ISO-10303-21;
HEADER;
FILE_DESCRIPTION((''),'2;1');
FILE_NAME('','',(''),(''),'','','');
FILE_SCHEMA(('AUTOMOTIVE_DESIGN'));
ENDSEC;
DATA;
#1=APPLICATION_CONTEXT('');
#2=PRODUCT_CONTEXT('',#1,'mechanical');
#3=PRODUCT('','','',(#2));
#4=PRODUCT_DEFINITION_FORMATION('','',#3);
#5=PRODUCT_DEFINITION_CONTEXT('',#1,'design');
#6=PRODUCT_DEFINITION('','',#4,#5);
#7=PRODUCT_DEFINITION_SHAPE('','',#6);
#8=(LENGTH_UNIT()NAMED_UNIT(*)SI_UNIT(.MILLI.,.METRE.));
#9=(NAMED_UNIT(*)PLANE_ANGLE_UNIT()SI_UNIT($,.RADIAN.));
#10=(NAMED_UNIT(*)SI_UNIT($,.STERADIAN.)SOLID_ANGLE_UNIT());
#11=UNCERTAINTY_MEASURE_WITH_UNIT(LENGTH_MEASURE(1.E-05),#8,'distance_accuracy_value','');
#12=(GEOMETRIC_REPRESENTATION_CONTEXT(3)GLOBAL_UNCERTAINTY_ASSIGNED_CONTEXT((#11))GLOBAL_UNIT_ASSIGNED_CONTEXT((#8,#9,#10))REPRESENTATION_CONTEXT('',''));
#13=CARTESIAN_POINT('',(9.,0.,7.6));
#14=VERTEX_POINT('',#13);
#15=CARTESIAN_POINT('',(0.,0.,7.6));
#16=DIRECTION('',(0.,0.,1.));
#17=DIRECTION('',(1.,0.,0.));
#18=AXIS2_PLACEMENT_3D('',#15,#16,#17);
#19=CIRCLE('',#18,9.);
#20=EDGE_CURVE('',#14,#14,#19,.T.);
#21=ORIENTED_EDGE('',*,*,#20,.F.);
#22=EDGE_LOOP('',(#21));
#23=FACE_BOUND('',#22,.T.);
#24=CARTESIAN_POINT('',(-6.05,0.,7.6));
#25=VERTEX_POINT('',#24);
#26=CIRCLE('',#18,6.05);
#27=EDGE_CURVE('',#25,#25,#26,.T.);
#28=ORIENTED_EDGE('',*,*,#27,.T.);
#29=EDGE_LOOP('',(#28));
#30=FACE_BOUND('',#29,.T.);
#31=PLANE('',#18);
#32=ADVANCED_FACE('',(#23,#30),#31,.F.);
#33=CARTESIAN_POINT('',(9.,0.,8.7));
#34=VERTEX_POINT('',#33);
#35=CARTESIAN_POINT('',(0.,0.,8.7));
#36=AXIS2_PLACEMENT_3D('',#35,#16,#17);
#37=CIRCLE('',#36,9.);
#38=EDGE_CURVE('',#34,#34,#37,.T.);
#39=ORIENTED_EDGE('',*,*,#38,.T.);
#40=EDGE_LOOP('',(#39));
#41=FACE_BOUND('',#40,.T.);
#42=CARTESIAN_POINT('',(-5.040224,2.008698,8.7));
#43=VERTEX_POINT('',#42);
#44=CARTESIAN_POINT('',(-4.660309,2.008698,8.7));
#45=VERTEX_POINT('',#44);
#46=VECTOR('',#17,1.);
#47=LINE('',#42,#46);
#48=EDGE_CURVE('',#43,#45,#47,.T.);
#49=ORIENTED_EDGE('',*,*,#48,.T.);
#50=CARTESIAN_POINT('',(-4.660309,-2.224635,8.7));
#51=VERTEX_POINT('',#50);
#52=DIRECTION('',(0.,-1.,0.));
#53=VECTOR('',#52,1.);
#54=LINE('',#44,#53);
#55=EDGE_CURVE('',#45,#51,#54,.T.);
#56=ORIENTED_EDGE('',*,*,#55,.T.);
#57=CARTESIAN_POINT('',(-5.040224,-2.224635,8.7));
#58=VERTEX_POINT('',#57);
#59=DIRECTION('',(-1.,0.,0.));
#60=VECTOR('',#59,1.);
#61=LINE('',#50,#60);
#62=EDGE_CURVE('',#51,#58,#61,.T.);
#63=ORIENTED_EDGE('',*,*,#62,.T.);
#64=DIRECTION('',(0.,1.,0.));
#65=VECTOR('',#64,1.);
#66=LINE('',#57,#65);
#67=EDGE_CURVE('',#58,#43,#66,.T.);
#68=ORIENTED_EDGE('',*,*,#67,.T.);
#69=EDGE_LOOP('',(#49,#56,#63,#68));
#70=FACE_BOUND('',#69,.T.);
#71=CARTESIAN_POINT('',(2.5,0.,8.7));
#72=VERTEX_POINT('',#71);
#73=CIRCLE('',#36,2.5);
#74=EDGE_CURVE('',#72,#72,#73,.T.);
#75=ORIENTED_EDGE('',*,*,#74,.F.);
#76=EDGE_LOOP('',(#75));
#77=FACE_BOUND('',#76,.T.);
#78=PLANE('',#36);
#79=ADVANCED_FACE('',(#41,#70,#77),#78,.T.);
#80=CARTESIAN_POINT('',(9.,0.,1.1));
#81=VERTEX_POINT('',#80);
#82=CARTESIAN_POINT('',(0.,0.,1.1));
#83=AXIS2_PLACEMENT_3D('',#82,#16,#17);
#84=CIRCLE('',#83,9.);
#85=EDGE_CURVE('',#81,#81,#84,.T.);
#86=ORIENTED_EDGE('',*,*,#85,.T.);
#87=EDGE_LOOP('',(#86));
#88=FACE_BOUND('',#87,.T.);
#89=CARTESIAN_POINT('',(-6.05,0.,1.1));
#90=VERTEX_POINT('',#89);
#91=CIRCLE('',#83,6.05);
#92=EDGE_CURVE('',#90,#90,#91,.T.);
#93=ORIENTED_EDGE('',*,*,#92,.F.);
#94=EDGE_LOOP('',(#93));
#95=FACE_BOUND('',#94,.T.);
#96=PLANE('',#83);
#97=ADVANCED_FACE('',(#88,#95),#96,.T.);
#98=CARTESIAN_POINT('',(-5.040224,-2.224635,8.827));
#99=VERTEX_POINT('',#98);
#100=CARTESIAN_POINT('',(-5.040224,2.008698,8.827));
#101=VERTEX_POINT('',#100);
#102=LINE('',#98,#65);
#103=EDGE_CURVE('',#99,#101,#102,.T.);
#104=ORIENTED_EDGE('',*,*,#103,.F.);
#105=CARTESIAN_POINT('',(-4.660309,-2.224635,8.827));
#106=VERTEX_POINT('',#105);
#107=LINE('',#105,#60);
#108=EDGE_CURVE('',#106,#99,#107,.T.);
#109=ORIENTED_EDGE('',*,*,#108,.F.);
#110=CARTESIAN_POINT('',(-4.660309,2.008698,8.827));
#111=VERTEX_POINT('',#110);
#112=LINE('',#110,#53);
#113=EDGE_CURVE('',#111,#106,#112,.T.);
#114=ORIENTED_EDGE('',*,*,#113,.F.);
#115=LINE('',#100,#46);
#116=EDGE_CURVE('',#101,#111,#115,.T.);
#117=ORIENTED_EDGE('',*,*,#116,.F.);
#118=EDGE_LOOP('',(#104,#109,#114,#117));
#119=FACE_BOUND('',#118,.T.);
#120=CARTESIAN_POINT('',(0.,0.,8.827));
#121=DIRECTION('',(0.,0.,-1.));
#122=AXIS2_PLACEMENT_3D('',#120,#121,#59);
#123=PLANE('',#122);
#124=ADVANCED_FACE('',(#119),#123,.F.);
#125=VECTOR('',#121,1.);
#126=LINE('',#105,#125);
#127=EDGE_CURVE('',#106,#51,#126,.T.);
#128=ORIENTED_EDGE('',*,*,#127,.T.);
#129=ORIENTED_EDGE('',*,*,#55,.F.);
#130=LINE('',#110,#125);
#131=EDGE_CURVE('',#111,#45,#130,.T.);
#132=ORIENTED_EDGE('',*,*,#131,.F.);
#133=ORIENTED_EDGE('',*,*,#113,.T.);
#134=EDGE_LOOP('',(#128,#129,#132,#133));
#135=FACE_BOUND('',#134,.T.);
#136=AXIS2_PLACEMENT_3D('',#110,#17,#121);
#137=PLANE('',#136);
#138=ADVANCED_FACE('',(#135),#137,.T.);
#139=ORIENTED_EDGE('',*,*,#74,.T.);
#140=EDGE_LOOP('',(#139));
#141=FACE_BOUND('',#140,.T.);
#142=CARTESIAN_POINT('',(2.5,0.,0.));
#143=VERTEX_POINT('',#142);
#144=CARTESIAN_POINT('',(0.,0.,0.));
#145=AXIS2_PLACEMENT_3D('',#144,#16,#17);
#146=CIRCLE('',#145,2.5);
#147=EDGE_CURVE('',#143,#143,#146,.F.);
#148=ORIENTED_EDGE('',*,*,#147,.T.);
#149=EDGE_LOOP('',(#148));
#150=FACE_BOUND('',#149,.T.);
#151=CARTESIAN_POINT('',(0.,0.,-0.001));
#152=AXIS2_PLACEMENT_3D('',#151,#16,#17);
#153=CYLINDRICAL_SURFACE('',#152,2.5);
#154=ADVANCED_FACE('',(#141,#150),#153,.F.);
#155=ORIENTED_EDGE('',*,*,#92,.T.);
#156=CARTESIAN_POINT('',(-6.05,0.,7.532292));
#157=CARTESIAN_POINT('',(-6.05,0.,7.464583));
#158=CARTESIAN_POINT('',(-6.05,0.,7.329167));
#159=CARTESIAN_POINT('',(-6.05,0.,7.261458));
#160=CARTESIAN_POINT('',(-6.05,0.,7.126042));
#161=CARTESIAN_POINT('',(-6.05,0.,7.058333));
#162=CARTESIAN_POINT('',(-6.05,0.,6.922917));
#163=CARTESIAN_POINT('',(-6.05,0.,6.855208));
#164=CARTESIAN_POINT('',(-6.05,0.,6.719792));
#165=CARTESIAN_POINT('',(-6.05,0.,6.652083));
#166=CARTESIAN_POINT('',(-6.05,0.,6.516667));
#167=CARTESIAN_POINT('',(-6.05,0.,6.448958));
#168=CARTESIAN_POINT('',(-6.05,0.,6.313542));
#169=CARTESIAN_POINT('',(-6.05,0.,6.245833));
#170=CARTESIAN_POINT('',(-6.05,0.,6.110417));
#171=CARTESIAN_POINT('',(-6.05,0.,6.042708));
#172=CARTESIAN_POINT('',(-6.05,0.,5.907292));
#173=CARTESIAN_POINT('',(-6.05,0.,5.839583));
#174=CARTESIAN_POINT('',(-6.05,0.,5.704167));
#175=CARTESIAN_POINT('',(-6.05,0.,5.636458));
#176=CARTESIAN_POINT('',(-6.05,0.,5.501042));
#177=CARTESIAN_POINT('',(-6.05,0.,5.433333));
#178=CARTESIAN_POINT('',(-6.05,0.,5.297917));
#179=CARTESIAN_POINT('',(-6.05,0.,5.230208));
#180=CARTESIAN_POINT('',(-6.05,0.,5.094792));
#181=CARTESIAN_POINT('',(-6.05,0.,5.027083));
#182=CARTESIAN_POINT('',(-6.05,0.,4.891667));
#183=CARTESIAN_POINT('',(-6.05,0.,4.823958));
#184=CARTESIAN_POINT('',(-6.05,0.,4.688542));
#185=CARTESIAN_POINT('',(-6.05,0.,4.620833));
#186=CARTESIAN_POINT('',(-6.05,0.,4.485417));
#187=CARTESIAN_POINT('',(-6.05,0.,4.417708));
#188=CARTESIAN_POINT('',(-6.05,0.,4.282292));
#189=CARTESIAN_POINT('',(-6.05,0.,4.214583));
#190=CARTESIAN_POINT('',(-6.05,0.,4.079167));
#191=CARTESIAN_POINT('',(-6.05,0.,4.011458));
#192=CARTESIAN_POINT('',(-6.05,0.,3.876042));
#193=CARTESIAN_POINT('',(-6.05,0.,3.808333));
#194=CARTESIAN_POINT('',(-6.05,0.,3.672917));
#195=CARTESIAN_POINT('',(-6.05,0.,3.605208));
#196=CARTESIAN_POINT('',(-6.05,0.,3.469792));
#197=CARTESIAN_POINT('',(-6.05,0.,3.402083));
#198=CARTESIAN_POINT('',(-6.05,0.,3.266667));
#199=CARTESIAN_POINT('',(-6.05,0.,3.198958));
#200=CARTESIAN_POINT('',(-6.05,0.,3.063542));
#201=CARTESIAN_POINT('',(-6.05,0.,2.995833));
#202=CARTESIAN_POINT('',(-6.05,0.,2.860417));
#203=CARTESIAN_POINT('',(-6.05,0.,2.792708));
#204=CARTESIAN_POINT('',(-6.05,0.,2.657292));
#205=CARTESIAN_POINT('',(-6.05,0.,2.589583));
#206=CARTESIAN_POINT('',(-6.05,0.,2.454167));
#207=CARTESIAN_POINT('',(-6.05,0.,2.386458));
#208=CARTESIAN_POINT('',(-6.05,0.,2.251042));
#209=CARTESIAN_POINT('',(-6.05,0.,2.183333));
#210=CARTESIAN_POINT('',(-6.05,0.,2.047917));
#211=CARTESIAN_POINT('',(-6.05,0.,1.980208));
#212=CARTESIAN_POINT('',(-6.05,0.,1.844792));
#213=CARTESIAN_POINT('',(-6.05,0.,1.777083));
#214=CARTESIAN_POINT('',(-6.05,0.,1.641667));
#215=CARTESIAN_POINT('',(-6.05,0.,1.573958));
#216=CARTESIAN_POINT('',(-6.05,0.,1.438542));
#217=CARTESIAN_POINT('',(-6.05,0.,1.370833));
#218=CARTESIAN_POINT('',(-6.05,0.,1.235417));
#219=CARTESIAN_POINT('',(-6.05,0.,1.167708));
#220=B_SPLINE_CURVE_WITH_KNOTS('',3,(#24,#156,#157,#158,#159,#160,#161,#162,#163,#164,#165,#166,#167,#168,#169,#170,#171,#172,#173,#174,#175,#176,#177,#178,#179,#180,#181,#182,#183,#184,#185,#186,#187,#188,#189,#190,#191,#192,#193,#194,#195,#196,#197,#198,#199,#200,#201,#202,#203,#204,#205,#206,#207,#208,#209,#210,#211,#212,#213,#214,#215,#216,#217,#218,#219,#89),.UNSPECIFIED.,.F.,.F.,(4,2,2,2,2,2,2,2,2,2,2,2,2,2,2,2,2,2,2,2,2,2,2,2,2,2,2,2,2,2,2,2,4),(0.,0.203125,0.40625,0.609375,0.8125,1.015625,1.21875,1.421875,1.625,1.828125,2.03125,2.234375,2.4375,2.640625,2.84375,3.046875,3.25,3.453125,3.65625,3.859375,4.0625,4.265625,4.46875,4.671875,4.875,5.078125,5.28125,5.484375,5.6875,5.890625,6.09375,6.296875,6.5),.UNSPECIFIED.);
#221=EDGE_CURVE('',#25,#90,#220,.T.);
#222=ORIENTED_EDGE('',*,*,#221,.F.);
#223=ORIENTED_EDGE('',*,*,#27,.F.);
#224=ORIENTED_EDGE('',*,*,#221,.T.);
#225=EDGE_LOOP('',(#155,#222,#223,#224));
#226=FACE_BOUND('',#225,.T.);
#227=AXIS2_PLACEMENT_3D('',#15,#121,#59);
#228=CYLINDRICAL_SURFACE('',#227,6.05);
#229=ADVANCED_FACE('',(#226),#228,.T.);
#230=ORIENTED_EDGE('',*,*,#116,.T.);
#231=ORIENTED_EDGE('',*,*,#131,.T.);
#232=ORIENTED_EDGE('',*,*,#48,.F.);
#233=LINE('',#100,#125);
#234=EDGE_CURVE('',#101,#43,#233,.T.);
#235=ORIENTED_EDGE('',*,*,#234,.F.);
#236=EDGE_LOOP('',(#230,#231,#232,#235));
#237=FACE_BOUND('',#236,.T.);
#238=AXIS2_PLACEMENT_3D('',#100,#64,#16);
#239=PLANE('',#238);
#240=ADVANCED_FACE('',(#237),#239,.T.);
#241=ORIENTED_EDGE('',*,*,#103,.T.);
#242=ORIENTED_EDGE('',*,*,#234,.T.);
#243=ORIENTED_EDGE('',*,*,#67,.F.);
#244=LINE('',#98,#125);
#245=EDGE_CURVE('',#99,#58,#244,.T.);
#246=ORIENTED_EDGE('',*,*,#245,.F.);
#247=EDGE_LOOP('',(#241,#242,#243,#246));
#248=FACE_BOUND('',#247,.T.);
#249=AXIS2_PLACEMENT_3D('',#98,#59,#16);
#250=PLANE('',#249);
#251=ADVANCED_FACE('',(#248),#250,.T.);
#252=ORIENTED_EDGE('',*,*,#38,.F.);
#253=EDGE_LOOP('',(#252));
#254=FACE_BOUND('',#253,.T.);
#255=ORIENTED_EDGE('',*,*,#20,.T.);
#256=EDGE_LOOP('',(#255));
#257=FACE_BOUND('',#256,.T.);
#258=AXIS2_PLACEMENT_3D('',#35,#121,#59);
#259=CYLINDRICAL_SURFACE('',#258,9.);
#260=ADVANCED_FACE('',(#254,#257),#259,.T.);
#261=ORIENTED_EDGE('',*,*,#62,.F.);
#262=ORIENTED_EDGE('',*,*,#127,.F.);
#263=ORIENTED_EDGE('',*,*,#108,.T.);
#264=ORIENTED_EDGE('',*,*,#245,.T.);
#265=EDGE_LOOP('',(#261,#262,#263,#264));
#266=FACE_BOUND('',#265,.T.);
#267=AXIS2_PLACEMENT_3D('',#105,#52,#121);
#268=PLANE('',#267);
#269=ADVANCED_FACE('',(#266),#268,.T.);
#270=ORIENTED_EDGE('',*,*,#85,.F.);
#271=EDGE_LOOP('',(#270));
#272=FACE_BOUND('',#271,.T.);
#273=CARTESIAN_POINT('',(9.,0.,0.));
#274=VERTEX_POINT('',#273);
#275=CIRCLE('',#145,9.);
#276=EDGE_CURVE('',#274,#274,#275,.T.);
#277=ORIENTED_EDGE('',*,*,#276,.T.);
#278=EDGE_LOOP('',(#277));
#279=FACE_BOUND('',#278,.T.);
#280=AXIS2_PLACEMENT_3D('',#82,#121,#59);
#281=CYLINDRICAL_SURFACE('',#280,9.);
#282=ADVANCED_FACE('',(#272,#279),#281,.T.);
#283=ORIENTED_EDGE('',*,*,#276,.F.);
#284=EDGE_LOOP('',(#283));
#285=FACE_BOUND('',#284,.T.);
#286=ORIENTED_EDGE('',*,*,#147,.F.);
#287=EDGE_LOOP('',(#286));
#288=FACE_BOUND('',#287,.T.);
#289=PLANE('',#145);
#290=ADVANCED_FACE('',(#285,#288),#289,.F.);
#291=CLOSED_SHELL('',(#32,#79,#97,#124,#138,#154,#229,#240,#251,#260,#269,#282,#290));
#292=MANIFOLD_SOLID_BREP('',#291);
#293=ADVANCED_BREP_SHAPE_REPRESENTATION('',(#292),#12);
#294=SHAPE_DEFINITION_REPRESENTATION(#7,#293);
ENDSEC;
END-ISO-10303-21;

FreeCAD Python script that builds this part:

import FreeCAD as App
import Part
import Sketcher

doc = App.newDocument("Part")
body = doc.addObject("PartDesign::Body", "Body")

# Sketch on XY plane
sketch1 = body.newObject("Sketcher::SketchObject", "Sketch")
sketch1.AttachmentSupport = (doc.getObject("XY_Plane"), [""])
sketch1.MapMode = "FlatFace"
sketch1.addGeometry(Part.Circle(App.Vector(0, 0, 0), App.Vector(0, 0, 1), 9), False)
sketch1.addConstraint([
    Sketcher.Constraint("Coincident", 0, 3, -1, 1),
    Sketcher.Constraint("Diameter", 0, 18.0),
])
pad1 = body.newObject("PartDesign::Pad", "Pad")
pad1.Profile = sketch1
pad1.Length = 1.1

# Sketch on XY plane
sketch2 = body.newObject("Sketcher::SketchObject", "Sketch001")
sketch2.AttachmentSupport = (doc.getObject("XY_Plane"), [""])
sketch2.MapMode = "FlatFace"
sketch2.AttachmentOffset = App.Placement(App.Vector(0, 0, 1.1), App.Rotation())
sketch2.addGeometry(Part.Circle(App.Vector(0, 0, 0), App.Vector(0, 0, 1), 6), False)
sketch2.addConstraint([
    Sketcher.Constraint("Coincident", 0, 3, -1, 1),
    Sketcher.Constraint("Diameter", 0, 12.1),
])
pad2 = body.newObject("PartDesign::Pad", "Pad001")
pad2.Profile = sketch2
pad2.Length = 6.5

# Sketch on XY plane
sketch3 = body.newObject("Sketcher::SketchObject", "Sketch002")
sketch3.AttachmentSupport = (doc.getObject("XY_Plane"), [""])
sketch3.MapMode = "FlatFace"
sketch3.AttachmentOffset = App.Placement(App.Vector(0, 0, 7.6), App.Rotation())
sketch3.addGeometry(Part.Circle(App.Vector(0, 0, 0), App.Vector(0, 0, 1), 9), False)
sketch3.addConstraint([
    Sketcher.Constraint("Coincident", 0, 3, -1, 1),
    Sketcher.Constraint("Diameter", 0, 18.0),
])
pad3 = body.newObject("PartDesign::Pad", "Pad002")
pad3.Profile = sketch3
pad3.Length = 1.1

# Sketch on XY plane
sketch4 = body.newObject("Sketcher::SketchObject", "Sketch003")
sketch4.AttachmentSupport = (doc.getObject("XY_Plane"), [""])
sketch4.MapMode = "FlatFace"
sketch4.AttachmentOffset = App.Placement(App.Vector(0, 0, 8.7), App.Rotation())
sketch4.addGeometry(Part.Circle(App.Vector(0, 0, 0), App.Vector(0, 0, 1), 2.5), False)
sketch4.addConstraint([
    Sketcher.Constraint("Coincident", 0, 3, -1, 1),
    Sketcher.Constraint("Diameter", 0, 5.0),
])
pocket1 = body.newObject("PartDesign::Pocket", "Pocket")
pocket1.Profile = sketch4
pocket1.Type = "UpToFirst"

# Sketch on XY plane
sketch5 = body.newObject("Sketcher::SketchObject", "Sketch004")
sketch5.AttachmentSupport = (doc.getObject("XY_Plane"), [""])
sketch5.MapMode = "FlatFace"
sketch5.AttachmentOffset = App.Placement(App.Vector(0, 0, 8.7), App.Rotation())
sketch5.addGeometry([
    Part.LineSegment(App.Vector(-5.04, 2.01, 0), App.Vector(-5.04, -2.22, 0)),
    Part.LineSegment(App.Vector(-5.04, -2.22, 0), App.Vector(-4.66, -2.22, 0)),
    Part.LineSegment(App.Vector(-4.66, -2.22, 0), App.Vector(-4.66, 2.01, 0)),
    Part.LineSegment(App.Vector(-4.66, 2.01, 0), App.Vector(-5.04, 2.01, 0)),
], False)
sketch5.addConstraint([
    Sketcher.Constraint("Coincident", 0, 2, 1, 1),
    Sketcher.Constraint("Coincident", 1, 2, 2, 1),
    Sketcher.Constraint("Coincident", 2, 2, 3, 1),
    Sketcher.Constraint("Coincident", 3, 2, 0, 1),
    Sketcher.Constraint("Vertical", 0),
    Sketcher.Constraint("Horizontal", 1),
    Sketcher.Constraint("Vertical", 2),
    Sketcher.Constraint("Horizontal", 3),
    Sketcher.Constraint("DistanceX", 1, 1, 1, 2, 0.379915),
    Sketcher.Constraint("DistanceY", 0, 2, 0, 1, 4.233333),
    Sketcher.Constraint("DistanceX", 1, 2, -1, 1, 4.660309),
    Sketcher.Constraint("DistanceY", 0, 2, -1, 1, 2.224635),
])
pad4 = body.newObject("PartDesign::Pad", "Pad003")
pad4.Profile = sketch5
pad4.Length = 0.127

doc.recompute()
